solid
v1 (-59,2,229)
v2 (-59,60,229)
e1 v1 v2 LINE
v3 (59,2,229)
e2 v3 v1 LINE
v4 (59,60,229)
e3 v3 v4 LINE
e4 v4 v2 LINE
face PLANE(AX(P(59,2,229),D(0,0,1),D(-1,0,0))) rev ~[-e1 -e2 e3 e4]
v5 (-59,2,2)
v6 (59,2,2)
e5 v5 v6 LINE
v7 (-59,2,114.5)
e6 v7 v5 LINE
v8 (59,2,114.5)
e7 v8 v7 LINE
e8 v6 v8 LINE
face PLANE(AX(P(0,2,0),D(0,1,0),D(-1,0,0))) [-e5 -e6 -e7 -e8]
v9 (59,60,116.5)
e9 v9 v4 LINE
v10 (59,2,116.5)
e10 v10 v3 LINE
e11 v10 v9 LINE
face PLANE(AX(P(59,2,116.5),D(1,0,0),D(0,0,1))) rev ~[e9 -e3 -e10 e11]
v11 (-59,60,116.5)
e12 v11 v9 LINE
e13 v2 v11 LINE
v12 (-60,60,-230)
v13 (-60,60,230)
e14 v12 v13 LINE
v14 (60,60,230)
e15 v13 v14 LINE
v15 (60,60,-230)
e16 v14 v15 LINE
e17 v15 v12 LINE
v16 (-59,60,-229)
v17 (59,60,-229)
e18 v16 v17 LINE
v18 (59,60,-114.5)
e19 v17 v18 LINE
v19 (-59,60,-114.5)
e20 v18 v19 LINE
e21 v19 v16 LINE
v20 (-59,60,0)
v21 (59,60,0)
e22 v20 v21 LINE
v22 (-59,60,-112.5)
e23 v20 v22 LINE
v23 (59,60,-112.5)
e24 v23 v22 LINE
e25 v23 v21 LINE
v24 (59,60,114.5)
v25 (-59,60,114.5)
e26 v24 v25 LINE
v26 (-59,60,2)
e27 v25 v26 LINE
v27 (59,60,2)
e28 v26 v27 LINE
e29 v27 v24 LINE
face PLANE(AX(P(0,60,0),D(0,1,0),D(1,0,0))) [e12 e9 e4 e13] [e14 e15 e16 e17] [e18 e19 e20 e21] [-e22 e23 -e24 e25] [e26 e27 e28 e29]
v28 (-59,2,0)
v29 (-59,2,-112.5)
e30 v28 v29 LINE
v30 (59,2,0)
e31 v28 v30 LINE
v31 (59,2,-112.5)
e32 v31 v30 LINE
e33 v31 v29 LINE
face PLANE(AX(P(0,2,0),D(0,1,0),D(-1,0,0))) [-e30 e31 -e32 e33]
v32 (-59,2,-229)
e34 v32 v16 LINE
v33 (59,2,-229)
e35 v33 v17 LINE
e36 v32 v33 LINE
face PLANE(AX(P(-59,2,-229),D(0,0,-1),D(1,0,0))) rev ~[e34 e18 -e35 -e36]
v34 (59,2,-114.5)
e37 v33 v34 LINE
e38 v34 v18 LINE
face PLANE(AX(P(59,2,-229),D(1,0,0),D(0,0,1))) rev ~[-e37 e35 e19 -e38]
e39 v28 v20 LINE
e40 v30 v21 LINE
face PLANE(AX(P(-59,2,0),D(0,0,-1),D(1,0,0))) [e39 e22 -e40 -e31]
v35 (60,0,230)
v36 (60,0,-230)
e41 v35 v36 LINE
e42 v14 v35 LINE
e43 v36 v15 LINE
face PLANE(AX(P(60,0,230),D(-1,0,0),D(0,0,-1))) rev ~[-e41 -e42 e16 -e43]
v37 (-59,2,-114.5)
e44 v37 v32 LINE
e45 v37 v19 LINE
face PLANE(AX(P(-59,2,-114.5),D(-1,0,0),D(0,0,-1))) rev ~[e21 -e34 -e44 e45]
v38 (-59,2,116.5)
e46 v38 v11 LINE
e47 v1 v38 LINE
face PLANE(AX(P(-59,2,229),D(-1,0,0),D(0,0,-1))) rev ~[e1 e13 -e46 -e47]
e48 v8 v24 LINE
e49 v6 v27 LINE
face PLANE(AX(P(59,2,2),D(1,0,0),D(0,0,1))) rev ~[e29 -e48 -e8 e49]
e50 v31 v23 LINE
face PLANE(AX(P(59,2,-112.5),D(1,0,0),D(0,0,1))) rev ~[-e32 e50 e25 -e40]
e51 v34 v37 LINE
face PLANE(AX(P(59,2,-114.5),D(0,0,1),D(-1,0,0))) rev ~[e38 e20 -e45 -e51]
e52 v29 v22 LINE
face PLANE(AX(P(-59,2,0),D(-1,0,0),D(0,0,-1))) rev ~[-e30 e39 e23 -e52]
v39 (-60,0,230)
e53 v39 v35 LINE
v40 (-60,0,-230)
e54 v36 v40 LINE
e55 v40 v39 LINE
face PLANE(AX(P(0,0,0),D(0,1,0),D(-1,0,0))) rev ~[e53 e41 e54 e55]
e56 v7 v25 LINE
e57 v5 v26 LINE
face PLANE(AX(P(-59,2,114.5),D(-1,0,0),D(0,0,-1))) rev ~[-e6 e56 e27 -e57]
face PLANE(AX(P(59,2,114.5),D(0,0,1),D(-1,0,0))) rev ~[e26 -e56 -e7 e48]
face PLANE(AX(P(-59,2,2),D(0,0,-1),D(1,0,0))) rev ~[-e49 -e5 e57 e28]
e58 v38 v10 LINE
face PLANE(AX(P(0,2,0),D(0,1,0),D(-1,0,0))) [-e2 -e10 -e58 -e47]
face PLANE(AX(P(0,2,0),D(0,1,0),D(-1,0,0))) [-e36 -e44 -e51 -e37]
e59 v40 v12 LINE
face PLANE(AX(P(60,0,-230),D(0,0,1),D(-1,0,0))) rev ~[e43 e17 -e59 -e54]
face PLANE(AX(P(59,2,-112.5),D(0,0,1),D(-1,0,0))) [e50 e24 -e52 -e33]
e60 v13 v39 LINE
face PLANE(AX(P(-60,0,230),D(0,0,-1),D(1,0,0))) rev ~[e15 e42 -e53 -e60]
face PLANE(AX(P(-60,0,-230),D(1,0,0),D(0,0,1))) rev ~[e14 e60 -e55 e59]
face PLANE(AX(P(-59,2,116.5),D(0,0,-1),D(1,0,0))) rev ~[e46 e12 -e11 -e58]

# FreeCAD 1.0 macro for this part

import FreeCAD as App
import Part
import Sketcher

V = App.Vector
Q = App.Units.Quantity

doc = App.newDocument("Part")
params = doc.addObject("Spreadsheet::Sheet", "Params")
for row, (alias, value) in enumerate([
    ("sketch1_width", "120 mm"),
    ("sketch1_height", "460 mm"),
    ("pad1_length", "2 mm"),
    ("sketch2_width", "118 mm"),
    ("sketch2_height", "112.5 mm"),
    ("sketch2_width2", "120 mm"),
    ("sketch2_height2", "460 mm"),
    ("pad2_length", "58 mm"),
], start=1):
    params.set(f"A{row}", alias)
    params.set(f"B{row}", "=" + value)
    params.setAlias(f"B{row}", alias)

body = doc.addObject("PartDesign::Body", "Body")

sketch1 = body.newObject("Sketcher::SketchObject", "Sketch")
sketch1.AttachmentSupport = (doc.getObject("XZ_Plane"), [""])
sketch1.MapMode = "FlatFace"
sketch1.addGeometry(Part.LineSegment(V(60, 230, 0), V(60, -230, 0)), False)
sketch1.addGeometry(Part.LineSegment(V(60, -230, 0), V(-60, -230, 0)), False)
sketch1.addGeometry(Part.LineSegment(V(-60, -230, 0), V(-60, 230, 0)), False)
sketch1.addGeometry(Part.LineSegment(V(-60, 230, 0), V(60, 230, 0)), False)
sketch1.addConstraint(Sketcher.Constraint("Coincident", 0, 2, 1, 1))
sketch1.addConstraint(Sketcher.Constraint("Coincident", 1, 2, 2, 1))
sketch1.addConstraint(Sketcher.Constraint("Coincident", 2, 2, 3, 1))
sketch1.addConstraint(Sketcher.Constraint("Coincident", 3, 2, 0, 1))
sketch1.addConstraint(Sketcher.Constraint("Vertical", 0))
sketch1.addConstraint(Sketcher.Constraint("Horizontal", 1))
sketch1.addConstraint(Sketcher.Constraint("Vertical", 2))
sketch1.addConstraint(Sketcher.Constraint("Horizontal", 3))
sketch1.addConstraint(Sketcher.Constraint("Symmetric", 0, 2, 2, 2, -1, 1))
sketch1.addConstraint(Sketcher.Constraint("DistanceX", 1, 2, 1, 1, Q("120 mm")))
sketch1.addConstraint(Sketcher.Constraint("DistanceY", 0, 2, 0, 1, Q("460 mm")))
sketch1.setExpression("Constraints[9]", "Params.sketch1_width")
sketch1.setExpression("Constraints[10]", "Params.sketch1_height")
pad1 = body.newObject("PartDesign::Pad", "Pad")
pad1.Profile = sketch1
pad1.setExpression("Length", "Params.pad1_length")
pad1.Reversed = True

sketch2 = body.newObject("Sketcher::SketchObject", "Sketch001")
sketch2.AttachmentSupport = (doc.getObject("XZ_Plane"), [""])
sketch2.MapMode = "FlatFace"
sketch2.AttachmentOffset = App.Placement(V(0, 0, -2), App.Rotation())
sketch2.addGeometry(Part.LineSegment(V(60, -230, 0), V(-60, -230, 0)), False)
sketch2.addGeometry(Part.LineSegment(V(-60, -230, 0), V(-60, 230, 0)), False)
sketch2.addGeometry(Part.LineSegment(V(-60, 230, 0), V(60, 230, 0)), False)
sketch2.addGeometry(Part.LineSegment(V(60, 230, 0), V(60, -230, 0)), False)
sketch2.addGeometry(Part.LineSegment(V(-59, 116.5, 0), V(59, 116.5, 0)), False)
sketch2.addGeometry(Part.LineSegment(V(59, 116.5, 0), V(59, 229, 0)), False)
sketch2.addGeometry(Part.LineSegment(V(59, 229, 0), V(-59, 229, 0)), False)
sketch2.addGeometry(Part.LineSegment(V(-59, 229, 0), V(-59, 116.5, 0)), False)
sketch2.addGeometry(Part.LineSegment(V(59, 114.5, 0), V(-59, 114.5, 0)), False)
sketch2.addGeometry(Part.LineSegment(V(-59, 114.5, 0), V(-59, 2, 0)), False)
sketch2.addGeometry(Part.LineSegment(V(-59, 2, 0), V(59, 2, 0)), False)
sketch2.addGeometry(Part.LineSegment(V(59, 2, 0), V(59, 114.5, 0)), False)
sketch2.addGeometry(Part.LineSegment(V(59, -112.5, 0), V(59, 0, 0)), False)
sketch2.addGeometry(Part.LineSegment(V(59, 0, 0), V(-59, 0, 0)), False)
sketch2.addGeometry(Part.LineSegment(V(-59, 0, 0), V(-59, -112.5, 0)), False)
sketch2.addGeometry(Part.LineSegment(V(-59, -112.5, 0), V(59, -112.5, 0)), False)
sketch2.addGeometry(Part.LineSegment(V(59, -229, 0), V(59, -114.5, 0)), False)
sketch2.addGeometry(Part.LineSegment(V(59, -114.5, 0), V(-59, -114.5, 0)), False)
sketch2.addGeometry(Part.LineSegment(V(-59, -114.5, 0), V(-59, -229, 0)), False)
sketch2.addGeometry(Part.LineSegment(V(-59, -229, 0), V(59, -229, 0)), False)
sketch2.addConstraint(Sketcher.Constraint("Coincident", 0, 2, 1, 1))
sketch2.addConstraint(Sketcher.Constraint("Coincident", 1, 2, 2, 1))
sketch2.addConstraint(Sketcher.Constraint("Coincident", 2, 2, 3, 1))
sketch2.addConstraint(Sketcher.Constraint("Coincident", 3, 2, 0, 1))
sketch2.addConstraint(Sketcher.Constraint("Coincident", 4, 2, 5, 1))
sketch2.addConstraint(Sketcher.Constraint("Coincident", 5, 2, 6, 1))
sketch2.addConstraint(Sketcher.Constraint("Coincident", 6, 2, 7, 1))
sketch2.addConstraint(Sketcher.Constraint("Coincident", 7, 2, 4, 1))
sketch2.addConstraint(Sketcher.Constraint("Coincident", 8, 2, 9, 1))
sketch2.addConstraint(Sketcher.Constraint("Coincident", 9, 2, 10, 1))
sketch2.addConstraint(Sketcher.Constraint("Coincident", 10, 2, 11, 1))
sketch2.addConstraint(Sketcher.Constraint("Coincident", 11, 2, 8, 1))
sketch2.addConstraint(Sketcher.Constraint("Coincident", 12, 2, 13, 1))
sketch2.addConstraint(Sketcher.Constraint("Coincident", 13, 2, 14, 1))
sketch2.addConstraint(Sketcher.Constraint("Coincident", 14, 2, 15, 1))
sketch2.addConstraint(Sketcher.Constraint("Coincident", 15, 2, 12, 1))
sketch2.addConstraint(Sketcher.Constraint("Coincident", 16, 2, 17, 1))
sketch2.addConstraint(Sketcher.Constraint("Coincident", 17, 2, 18, 1))
sketch2.addConstraint(Sketcher.Constraint("Coincident", 18, 2, 19, 1))
sketch2.addConstraint(Sketcher.Constraint("Coincident", 19, 2, 16, 1))
sketch2.addConstraint(Sketcher.Constraint("Horizontal", 0))
sketch2.addConstraint(Sketcher.Constraint("Vertical", 1))
sketch2.addConstraint(Sketcher.Constraint("Horizontal", 2))
sketch2.addConstraint(Sketcher.Constraint("Vertical", 3))
sketch2.addConstraint(Sketcher.Constraint("Horizontal", 4))
sketch2.addConstraint(Sketcher.Constraint("Vertical", 5))
sketch2.addConstraint(Sketcher.Constraint("Horizontal", 6))
sketch2.addConstraint(Sketcher.Constraint("Vertical", 7))
sketch2.addConstraint(Sketcher.Constraint("Horizontal", 8))
sketch2.addConstraint(Sketcher.Constraint("Vertical", 9))
sketch2.addConstraint(Sketcher.Constraint("Horizontal", 10))
sketch2.addConstraint(Sketcher.Constraint("Vertical", 11))
sketch2.addConstraint(Sketcher.Constraint("Vertical", 12))
sketch2.addConstraint(Sketcher.Constraint("Horizontal", 13))
sketch2.addConstraint(Sketcher.Constraint("Vertical", 14))
sketch2.addConstraint(Sketcher.Constraint("Horizontal", 15))
sketch2.addConstraint(Sketcher.Constraint("Vertical", 16))
sketch2.addConstraint(Sketcher.Constraint("Horizontal", 17))
sketch2.addConstraint(Sketcher.Constraint("Vertical", 18))
sketch2.addConstraint(Sketcher.Constraint("Horizontal", 19))
sketch2.addConstraint(Sketcher.Constraint("Symmetric", 0, 2, 2, 2, -1, 1))
sketch2.addConstraint(Sketcher.Constraint("Symmetric", 12, 2, 13, 2, -1, 1))
sketch2.addConstraint(Sketcher.Constraint("Symmetric", 8, 2, 16, 2, -1, 1))
sketch2.addConstraint(Sketcher.Constraint("Symmetric", 5, 2, 18, 2, -1, 1))
sketch2.addConstraint(Sketcher.Constraint("Vertical", 7, 2, 8, 2))
sketch2.addConstraint(Sketcher.Constraint("Vertical", 5, 2, 10, 2))
sketch2.addConstraint(Sketcher.Constraint("Vertical", 11, 2, 12, 2))
sketch2.addConstraint(Sketcher.Constraint("Vertical", 9, 2, 13, 2))
sketch2.addConstraint(Sketcher.Constraint("Equal", 7, 9))
sketch2.addConstraint(Sketcher.Constraint("Equal", 11, 12))
sketch2.addConstraint(Sketcher.Constraint("DistanceX", 4, 1, 4, 2, Q("118 mm")))
sketch2.addConstraint(Sketcher.Constraint("DistanceY", 5, 1, 5, 2, Q("112.5 mm")))
sketch2.addConstraint(Sketcher.Constraint("DistanceY", -1, 1, 9, 2, Q("2 mm")))
sketch2.addConstraint(Sketcher.Constraint("DistanceY", 8, 2, 7, 2, Q("2 mm")))
sketch2.addConstraint(Sketcher.Constraint("DistanceX", 0, 2, 0, 1, Q("120 mm")))
sketch2.addConstraint(Sketcher.Constraint("DistanceY", 1, 1, 1, 2, Q("460 mm")))
sketch2.setExpression("Constraints[50]", "Params.sketch2_width")
sketch2.setExpression("Constraints[51]", "Params.sketch2_height")
sketch2.setExpression("Constraints[54]", "Params.sketch2_width2")
sketch2.setExpression("Constraints[55]", "Params.sketch2_height2")
pad2 = body.newObject("PartDesign::Pad", "Pad001")
pad2.Profile = sketch2
pad2.setExpression("Length", "Params.pad2_length")
pad2.Reversed = True

doc.recompute()
